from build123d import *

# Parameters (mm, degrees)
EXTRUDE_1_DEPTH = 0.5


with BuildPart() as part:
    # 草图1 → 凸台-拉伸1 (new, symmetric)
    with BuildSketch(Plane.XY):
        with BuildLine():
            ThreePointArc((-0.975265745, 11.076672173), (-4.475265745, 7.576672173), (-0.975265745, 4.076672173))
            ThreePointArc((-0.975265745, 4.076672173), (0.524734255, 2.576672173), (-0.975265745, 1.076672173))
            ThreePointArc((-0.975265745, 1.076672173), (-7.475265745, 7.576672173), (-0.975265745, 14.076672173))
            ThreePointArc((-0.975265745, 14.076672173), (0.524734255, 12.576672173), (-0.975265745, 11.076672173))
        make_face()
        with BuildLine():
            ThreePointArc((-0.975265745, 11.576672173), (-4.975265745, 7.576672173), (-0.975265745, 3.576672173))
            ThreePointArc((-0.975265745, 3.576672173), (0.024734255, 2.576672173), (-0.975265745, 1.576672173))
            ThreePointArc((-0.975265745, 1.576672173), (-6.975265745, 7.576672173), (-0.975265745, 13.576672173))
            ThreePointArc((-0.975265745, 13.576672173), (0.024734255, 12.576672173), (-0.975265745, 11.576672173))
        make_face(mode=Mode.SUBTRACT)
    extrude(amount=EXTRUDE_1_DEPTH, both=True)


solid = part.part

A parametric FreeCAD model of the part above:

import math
import FreeCAD as App
import Part
import Sketcher

V = App.Vector
Q = App.Units.Quantity

doc = App.newDocument("Part")
params = doc.addObject("Spreadsheet::Sheet", "Params")
for row, (alias, value) in enumerate([
    ("sketch1_radius", "4 mm"),
    ("sketch1_radius2", "1 mm"),
    ("sketch1_radius3", "3.5 mm"),
    ("pad1_length", "1 mm"),
], start=1):
    params.set(f"A{row}", alias)
    params.set(f"B{row}", "=" + value)
    params.setAlias(f"B{row}", alias)

body = doc.addObject("PartDesign::Body", "Body")

sketch1 = body.newObject("Sketcher::SketchObject", "Sketch")
sketch1.AttachmentSupport = (doc.getObject("XY_Plane"), [""])
sketch1.MapMode = "FlatFace"
sketch1.addGeometry([
    Part.ArcOfCircle(Part.Circle(V(-0.975266, 7.576672, 0), V(0, 0, 1), 3.5), math.radians(90), math.radians(270)),
    Part.ArcOfCircle(Part.Circle(V(-0.975266, 12.576672, 0), V(0, 0, 1), 1.5), math.radians(-90), math.radians(90)),
    Part.ArcOfCircle(Part.Circle(V(-0.975266, 7.576672, 0), V(0, 0, 1), 6.5), math.radians(90), math.radians(270)),
    Part.ArcOfCircle(Part.Circle(V(-0.975266, 2.576672, 0), V(0, 0, 1), 1.5), math.radians(-90), math.radians(90)),
    Part.ArcOfCircle(Part.Circle(V(-0.975266, 7.576672, 0), V(0, 0, 1), 4), math.radians(90), math.radians(270)),
    Part.ArcOfCircle(Part.Circle(V(-0.975266, 2.576672, 0), V(0, 0, 1), 1), math.radians(-90), math.radians(90)),
    Part.ArcOfCircle(Part.Circle(V(-0.975266, 7.576672, 0), V(0, 0, 1), 6), math.radians(90), math.radians(270)),
    Part.ArcOfCircle(Part.Circle(V(-0.975266, 12.576672, 0), V(0, 0, 1), 1), math.radians(-90), math.radians(90)),
], False)
sketch1.addConstraint([
    Sketcher.Constraint("Tangent", 0, 1, 1, 1),
    Sketcher.Constraint("Tangent", 1, 2, 2, 1),
    Sketcher.Constraint("Tangent", 2, 2, 3, 1),
    Sketcher.Constraint("Tangent", 3, 2, 0, 2),
    Sketcher.Constraint("Tangent", 4, 2, 5, 2),
    Sketcher.Constraint("Tangent", 5, 1, 6, 2),
    Sketcher.Constraint("Tangent", 6, 1, 7, 2),
    Sketcher.Constraint("Tangent", 7, 1, 4, 1),
    Sketcher.Constraint("Coincident", 2, 3, 0, 3),
    Sketcher.Constraint("Coincident", 4, 3, 0, 3),
    Sketcher.Constraint("Coincident", 5, 3, 3, 3),
    Sketcher.Constraint("Coincident", 6, 3, 0, 3),
    Sketcher.Constraint("Vertical", 0, 3, 1, 3),
    Sketcher.Constraint("Vertical", 2, 3, 3, 3),
    Sketcher.Constraint("Vertical", 6, 3, 7, 3),
    Sketcher.Constraint("Radius", 4, Q("4 mm")),
    Sketcher.Constraint("Radius", 5, Q("1 mm")),
    Sketcher.Constraint("Radius", 0, Q("3.5 mm")),
    Sketcher.Constraint("DistanceX", 0, 3, -1, 1, Q("0.975266 mm")),
    Sketcher.Constraint("DistanceY", -1, 1, 0, 3, Q("7.576672 mm")),
])
sketch1.setExpression("Constraints[15]", "Params.sketch1_radius")
sketch1.setExpression("Constraints[16]", "Params.sketch1_radius2")
sketch1.setExpression("Constraints[17]", "Params.sketch1_radius3")
pad1 = body.newObject("PartDesign::Pad", "Pad")
pad1.Profile = sketch1
pad1.setExpression("Length", "Params.pad1_length")
pad1.Midplane = True

doc.recompute()
